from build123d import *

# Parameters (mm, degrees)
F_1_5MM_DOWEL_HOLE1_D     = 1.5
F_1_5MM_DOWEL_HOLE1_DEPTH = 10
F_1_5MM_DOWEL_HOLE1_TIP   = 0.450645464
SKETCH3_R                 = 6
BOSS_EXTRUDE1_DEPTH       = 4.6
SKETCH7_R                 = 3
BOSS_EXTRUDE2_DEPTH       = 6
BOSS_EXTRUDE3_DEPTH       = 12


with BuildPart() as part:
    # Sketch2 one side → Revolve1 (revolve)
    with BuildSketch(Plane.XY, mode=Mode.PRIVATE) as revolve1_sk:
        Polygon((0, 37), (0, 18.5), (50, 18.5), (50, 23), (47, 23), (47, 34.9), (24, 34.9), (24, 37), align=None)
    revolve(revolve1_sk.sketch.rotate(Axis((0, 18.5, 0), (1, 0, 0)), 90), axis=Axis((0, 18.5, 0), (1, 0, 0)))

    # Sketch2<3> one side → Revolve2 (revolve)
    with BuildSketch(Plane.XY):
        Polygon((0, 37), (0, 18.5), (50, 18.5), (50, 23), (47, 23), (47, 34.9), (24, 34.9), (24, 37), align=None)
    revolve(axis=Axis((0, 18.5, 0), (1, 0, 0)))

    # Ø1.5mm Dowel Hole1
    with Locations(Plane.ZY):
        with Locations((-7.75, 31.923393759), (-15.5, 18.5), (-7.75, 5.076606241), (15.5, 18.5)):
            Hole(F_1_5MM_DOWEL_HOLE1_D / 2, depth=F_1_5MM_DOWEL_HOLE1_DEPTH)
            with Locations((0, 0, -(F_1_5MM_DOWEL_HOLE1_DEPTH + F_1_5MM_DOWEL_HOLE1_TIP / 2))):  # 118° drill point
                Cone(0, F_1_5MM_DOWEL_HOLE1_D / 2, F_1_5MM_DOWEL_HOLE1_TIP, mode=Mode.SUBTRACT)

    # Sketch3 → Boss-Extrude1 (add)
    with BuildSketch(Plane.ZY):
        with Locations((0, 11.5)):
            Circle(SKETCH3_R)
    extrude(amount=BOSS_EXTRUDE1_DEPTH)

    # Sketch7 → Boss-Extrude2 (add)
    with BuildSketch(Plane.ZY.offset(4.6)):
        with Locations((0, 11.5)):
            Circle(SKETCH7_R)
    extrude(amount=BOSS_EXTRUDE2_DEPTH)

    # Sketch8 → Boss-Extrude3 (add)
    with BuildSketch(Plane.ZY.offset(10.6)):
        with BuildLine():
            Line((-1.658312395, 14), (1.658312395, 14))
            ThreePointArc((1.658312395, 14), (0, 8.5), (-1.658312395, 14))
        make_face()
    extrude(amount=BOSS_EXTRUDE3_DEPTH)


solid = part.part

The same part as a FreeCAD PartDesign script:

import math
import FreeCAD as App
import Part
import Sketcher


def add_polygon(sketch, points):
    """Adds a closed chain of lines whose ends are joined by coincident constraints."""
    first, n = sketch.GeometryCount, len(points)
    for a, b in zip(points, points[1:] + points[:1]):
        sketch.addGeometry(Part.LineSegment(App.Vector(*a, 0), App.Vector(*b, 0)), False)
    for i in range(n):
        sketch.addConstraint(Sketcher.Constraint("Coincident", first + i, 2, first + (i + 1) % n, 1))

doc = App.newDocument("Part")
params = doc.addObject("Spreadsheet::Sheet", "Params")
for row, (alias, value) in enumerate([
    ("sketch1_width", "50 mm"),
    ("sketch1_width2", "3 mm"),
    ("sketch1_width3", "23 mm"),
    ("sketch1_height", "18.5 mm"),
    ("sketch1_height2", "4.5 mm"),
    ("revolution_angle", "360 deg"),
    ("sketch2_width", "50 mm"),
    ("sketch2_width2", "3 mm"),
    ("sketch2_width3", "23 mm"),
    ("sketch2_height", "18.5 mm"),
    ("sketch2_height2", "4.5 mm"),
    ("revolution2_angle", "360 deg"),
    ("sketch3_diameter", "1.5 mm"),
    ("hole_diameter", "1.5 mm"),
    ("hole_depth", "10 mm"),
    ("sketch4_diameter", "12 mm"),
    ("pad1_length", "4.6 mm"),
    ("sketch5_diameter", "6 mm"),
    ("pad2_length", "6 mm"),
    ("sketch6_radius", "3 mm"),
    ("pad3_length", "12 mm"),
], start=1):
    params.set(f"A{row}", alias)
    params.set(f"B{row}", "=" + value)
    params.setAlias(f"B{row}", alias)

body = doc.addObject("PartDesign::Body", "Body")

sketch1 = body.newObject("Sketcher::SketchObject", "Sketch")
sketch1.AttachmentSupport = (doc.getObject("XY_Plane"), [""])
sketch1.MapMode = "FlatFace"
add_polygon(sketch1, [(0, 37), (0, 18.5), (50, 18.5), (50, 23), (47, 23), (47, 34.9), (24, 34.9), (24, 37)])
sketch1.addGeometry(Part.LineSegment(App.Vector(0, 18.5, 0), App.Vector(50, 18.5, 0)), True)
sketch1.addConstraint([
    Sketcher.Constraint("Vertical", 0),
    Sketcher.Constraint("Horizontal", 1),
    Sketcher.Constraint("Vertical", 2),
    Sketcher.Constraint("Horizontal", 3),
    Sketcher.Constraint("Vertical", 4),
    Sketcher.Constraint("Horizontal", 5),
    Sketcher.Constraint("Vertical", 6),
    Sketcher.Constraint("Horizontal", 7),
    Sketcher.Constraint("Horizontal", 8),
    Sketcher.Constraint("Coincident", 8, 1, 0, 2),
    Sketcher.Constraint("PointOnObject", 0, 2, -2),
    Sketcher.Constraint("Vertical", 2, 2, 8, 2),
    Sketcher.Constraint("DistanceX", 1, 1, 1, 2, 50.0),
    Sketcher.Constraint("DistanceX", 3, 2, 3, 1, 3.0),
    Sketcher.Constraint("DistanceX", 5, 2, 5, 1, 23.0),
    Sketcher.Constraint("DistanceY", 0, 2, 0, 1, 18.5),
    Sketcher.Constraint("DistanceY", 2, 1, 2, 2, 4.5),
    Sketcher.Constraint("DistanceY", 4, 1, 4, 2, 11.9),
    Sketcher.Constraint("DistanceY", -1, 1, 2, 2, 23.0),
])
sketch1.setExpression("Constraints[20]", "Params.sketch1_width")
sketch1.setExpression("Constraints[21]", "Params.sketch1_width2")
sketch1.setExpression("Constraints[22]", "Params.sketch1_width3")
sketch1.setExpression("Constraints[23]", "Params.sketch1_height")
sketch1.setExpression("Constraints[24]", "Params.sketch1_height2")
revolution = body.newObject("PartDesign::Revolution", "Revolution")
revolution.Profile = sketch1
revolution.ReferenceAxis = (sketch1, ["Axis0"])
revolution.setExpression("Angle", "Params.revolution_angle")

sketch2 = body.newObject("Sketcher::SketchObject", "Sketch001")
sketch2.AttachmentSupport = (doc.getObject("XY_Plane"), [""])
sketch2.MapMode = "FlatFace"
add_polygon(sketch2, [(0, 37), (0, 18.5), (50, 18.5), (50, 23), (47, 23), (47, 34.9), (24, 34.9), (24, 37)])
sketch2.addGeometry(Part.LineSegment(App.Vector(0, 18.5, 0), App.Vector(50, 18.5, 0)), True)
sketch2.addConstraint([
    Sketcher.Constraint("Vertical", 0),
    Sketcher.Constraint("Horizontal", 1),
    Sketcher.Constraint("Vertical", 2),
    Sketcher.Constraint("Horizontal", 3),
    Sketcher.Constraint("Vertical", 4),
    Sketcher.Constraint("Horizontal", 5),
    Sketcher.Constraint("Vertical", 6),
    Sketcher.Constraint("Horizontal", 7),
    Sketcher.Constraint("Horizontal", 8),
    Sketcher.Constraint("Coincident", 8, 1, 0, 2),
    Sketcher.Constraint("PointOnObject", 0, 2, -2),
    Sketcher.Constraint("Vertical", 2, 2, 8, 2),
    Sketcher.Constraint("DistanceX", 1, 1, 1, 2, 50.0),
    Sketcher.Constraint("DistanceX", 3, 2, 3, 1, 3.0),
    Sketcher.Constraint("DistanceX", 5, 2, 5, 1, 23.0),
    Sketcher.Constraint("DistanceY", 0, 2, 0, 1, 18.5),
    Sketcher.Constraint("DistanceY", 2, 1, 2, 2, 4.5),
    Sketcher.Constraint("DistanceY", 4, 1, 4, 2, 11.9),
    Sketcher.Constraint("DistanceY", -1, 1, 2, 2, 23.0),
])
sketch2.setExpression("Constraints[20]", "Params.sketch2_width")
sketch2.setExpression("Constraints[21]", "Params.sketch2_width2")
sketch2.setExpression("Constraints[22]", "Params.sketch2_width3")
sketch2.setExpression("Constraints[23]", "Params.sketch2_height")
sketch2.setExpression("Constraints[24]", "Params.sketch2_height2")
revolution2 = body.newObject("PartDesign::Revolution", "Revolution001")
revolution2.Profile = sketch2
revolution2.ReferenceAxis = (sketch2, ["Axis0"])
revolution2.setExpression("Angle", "Params.revolution2_angle")

sketch3 = body.newObject("Sketcher::SketchObject", "Sketch002")
sketch3.AttachmentSupport = (doc.getObject("YZ_Plane"), [""])
sketch3.MapMode = "FlatFace"
sketch3.addGeometry([
    Part.Circle(App.Vector(31.923394, -7.75, 0), App.Vector(0, 0, 1), 0.75),
    Part.Circle(App.Vector(18.5, -15.5, 0), App.Vector(0, 0, 1), 0.75),
    Part.Circle(App.Vector(5.076606, -7.75, 0), App.Vector(0, 0, 1), 0.75),
    Part.Circle(App.Vector(18.5, 15.5, 0), App.Vector(0, 0, 1), 0.75),
], False)
sketch3.addConstraint([
    Sketcher.Constraint("Equal", 0, 1),
    Sketcher.Constraint("Equal", 1, 2),
    Sketcher.Constraint("Equal", 2, 3),
    Sketcher.Constraint("Symmetric", 1, 3, 3, 3, -1),
    Sketcher.Constraint("Horizontal", 0, 3, 2, 3),
    Sketcher.Constraint("Diameter", 0, 1.5),
    Sketcher.Constraint("DistanceY", 1, 3, 3, 3, 31.0),
    Sketcher.Constraint("DistanceX", -1, 1, 1, 3, 18.5),
    Sketcher.Constraint("DistanceY", 0, 3, -1, 1, 7.75),
    Sketcher.Constraint("DistanceX", -1, 1, 0, 3, 31.923394),
    Sketcher.Constraint("DistanceX", -1, 1, 2, 3, 5.076606),
])
sketch3.setExpression("Constraints[5]", "Params.sketch3_diameter")
doc.recompute()
hole = body.newObject("PartDesign::Hole", "Hole")
hole.Profile = sketch3
hole.ThreadType = "None"
hole.setExpression("Diameter", "Params.hole_diameter")
hole.DepthType = "Dimension"
hole.setExpression("Depth", "Params.hole_depth")
hole.DrillPoint = "Angled"
hole.DrillPointAngle = 118
hole.Reversed = True

sketch4 = body.newObject("Sketcher::SketchObject", "Sketch003")
sketch4.AttachmentSupport = (doc.getObject("YZ_Plane"), [""])
sketch4.MapMode = "FlatFace"
sketch4.addGeometry(Part.Circle(App.Vector(11.5, 0, 0), App.Vector(0, 0, 1), 6), False)
sketch4.addConstraint([
    Sketcher.Constraint("PointOnObject", 0, 3, -1),
    Sketcher.Constraint("Diameter", 0, 12.0),
    Sketcher.Constraint("DistanceX", -1, 1, 0, 3, 11.5),
])
sketch4.setExpression("Constraints[1]", "Params.sketch4_diameter")
pad1 = body.newObject("PartDesign::Pad", "Pad")
pad1.Profile = sketch4
pad1.setExpression("Length", "Params.pad1_length")
pad1.Reversed = True

sketch5 = body.newObject("Sketcher::SketchObject", "Sketch004")
sketch5.AttachmentSupport = (doc.getObject("YZ_Plane"), [""])
sketch5.MapMode = "FlatFace"
sketch5.AttachmentOffset = App.Placement(App.Vector(0, 0, -4.6), App.Rotation())
sketch5.addGeometry(Part.Circle(App.Vector(11.5, 0, 0), App.Vector(0, 0, 1), 3), False)
sketch5.addConstraint([
    Sketcher.Constraint("PointOnObject", 0, 3, -1),
    Sketcher.Constraint("Diameter", 0, 6.0),
    Sketcher.Constraint("DistanceX", -1, 1, 0, 3, 11.5),
])
sketch5.setExpression("Constraints[1]", "Params.sketch5_diameter")
pad2 = body.newObject("PartDesign::Pad", "Pad001")
pad2.Profile = sketch5
pad2.setExpression("Length", "Params.pad2_length")
pad2.Reversed = True

sketch6 = body.newObject("Sketcher::SketchObject", "Sketch005")
sketch6.AttachmentSupport = (doc.getObject("YZ_Plane"), [""])
sketch6.MapMode = "FlatFace"
sketch6.AttachmentOffset = App.Placement(App.Vector(0, 0, -10.6), App.Rotation())
sketch6.addGeometry([
    Part.LineSegment(App.Vector(14, 1.658312, 0), App.Vector(14, -1.658312, 0)),
    Part.ArcOfCircle(Part.Circle(App.Vector(11.5, 0, 0), App.Vector(0, 0, 1), 3), math.radians(33.55731), math.radians(326.44269)),
], False)
sketch6.addConstraint([
    Sketcher.Constraint("Coincident", 0, 1, 1, 1),
    Sketcher.Constraint("Coincident", 1, 2, 0, 2),
    Sketcher.Constraint("Vertical", 0),
    Sketcher.Constraint("PointOnObject", 1, 3, -1),
    Sketcher.Constraint("Radius", 1, 3.0),
    Sketcher.Constraint("DistanceX", -1, 1, 0, 1, 14.0),
    Sketcher.Constraint("DistanceX", -1, 1, 1, 3, 11.5),
])
sketch6.setExpression("Constraints[4]", "Params.sketch6_radius")
pad3 = body.newObject("PartDesign::Pad", "Pad002")
pad3.Profile = sketch6
pad3.setExpression("Length", "Params.pad3_length")
pad3.Reversed = True

doc.recompute()
